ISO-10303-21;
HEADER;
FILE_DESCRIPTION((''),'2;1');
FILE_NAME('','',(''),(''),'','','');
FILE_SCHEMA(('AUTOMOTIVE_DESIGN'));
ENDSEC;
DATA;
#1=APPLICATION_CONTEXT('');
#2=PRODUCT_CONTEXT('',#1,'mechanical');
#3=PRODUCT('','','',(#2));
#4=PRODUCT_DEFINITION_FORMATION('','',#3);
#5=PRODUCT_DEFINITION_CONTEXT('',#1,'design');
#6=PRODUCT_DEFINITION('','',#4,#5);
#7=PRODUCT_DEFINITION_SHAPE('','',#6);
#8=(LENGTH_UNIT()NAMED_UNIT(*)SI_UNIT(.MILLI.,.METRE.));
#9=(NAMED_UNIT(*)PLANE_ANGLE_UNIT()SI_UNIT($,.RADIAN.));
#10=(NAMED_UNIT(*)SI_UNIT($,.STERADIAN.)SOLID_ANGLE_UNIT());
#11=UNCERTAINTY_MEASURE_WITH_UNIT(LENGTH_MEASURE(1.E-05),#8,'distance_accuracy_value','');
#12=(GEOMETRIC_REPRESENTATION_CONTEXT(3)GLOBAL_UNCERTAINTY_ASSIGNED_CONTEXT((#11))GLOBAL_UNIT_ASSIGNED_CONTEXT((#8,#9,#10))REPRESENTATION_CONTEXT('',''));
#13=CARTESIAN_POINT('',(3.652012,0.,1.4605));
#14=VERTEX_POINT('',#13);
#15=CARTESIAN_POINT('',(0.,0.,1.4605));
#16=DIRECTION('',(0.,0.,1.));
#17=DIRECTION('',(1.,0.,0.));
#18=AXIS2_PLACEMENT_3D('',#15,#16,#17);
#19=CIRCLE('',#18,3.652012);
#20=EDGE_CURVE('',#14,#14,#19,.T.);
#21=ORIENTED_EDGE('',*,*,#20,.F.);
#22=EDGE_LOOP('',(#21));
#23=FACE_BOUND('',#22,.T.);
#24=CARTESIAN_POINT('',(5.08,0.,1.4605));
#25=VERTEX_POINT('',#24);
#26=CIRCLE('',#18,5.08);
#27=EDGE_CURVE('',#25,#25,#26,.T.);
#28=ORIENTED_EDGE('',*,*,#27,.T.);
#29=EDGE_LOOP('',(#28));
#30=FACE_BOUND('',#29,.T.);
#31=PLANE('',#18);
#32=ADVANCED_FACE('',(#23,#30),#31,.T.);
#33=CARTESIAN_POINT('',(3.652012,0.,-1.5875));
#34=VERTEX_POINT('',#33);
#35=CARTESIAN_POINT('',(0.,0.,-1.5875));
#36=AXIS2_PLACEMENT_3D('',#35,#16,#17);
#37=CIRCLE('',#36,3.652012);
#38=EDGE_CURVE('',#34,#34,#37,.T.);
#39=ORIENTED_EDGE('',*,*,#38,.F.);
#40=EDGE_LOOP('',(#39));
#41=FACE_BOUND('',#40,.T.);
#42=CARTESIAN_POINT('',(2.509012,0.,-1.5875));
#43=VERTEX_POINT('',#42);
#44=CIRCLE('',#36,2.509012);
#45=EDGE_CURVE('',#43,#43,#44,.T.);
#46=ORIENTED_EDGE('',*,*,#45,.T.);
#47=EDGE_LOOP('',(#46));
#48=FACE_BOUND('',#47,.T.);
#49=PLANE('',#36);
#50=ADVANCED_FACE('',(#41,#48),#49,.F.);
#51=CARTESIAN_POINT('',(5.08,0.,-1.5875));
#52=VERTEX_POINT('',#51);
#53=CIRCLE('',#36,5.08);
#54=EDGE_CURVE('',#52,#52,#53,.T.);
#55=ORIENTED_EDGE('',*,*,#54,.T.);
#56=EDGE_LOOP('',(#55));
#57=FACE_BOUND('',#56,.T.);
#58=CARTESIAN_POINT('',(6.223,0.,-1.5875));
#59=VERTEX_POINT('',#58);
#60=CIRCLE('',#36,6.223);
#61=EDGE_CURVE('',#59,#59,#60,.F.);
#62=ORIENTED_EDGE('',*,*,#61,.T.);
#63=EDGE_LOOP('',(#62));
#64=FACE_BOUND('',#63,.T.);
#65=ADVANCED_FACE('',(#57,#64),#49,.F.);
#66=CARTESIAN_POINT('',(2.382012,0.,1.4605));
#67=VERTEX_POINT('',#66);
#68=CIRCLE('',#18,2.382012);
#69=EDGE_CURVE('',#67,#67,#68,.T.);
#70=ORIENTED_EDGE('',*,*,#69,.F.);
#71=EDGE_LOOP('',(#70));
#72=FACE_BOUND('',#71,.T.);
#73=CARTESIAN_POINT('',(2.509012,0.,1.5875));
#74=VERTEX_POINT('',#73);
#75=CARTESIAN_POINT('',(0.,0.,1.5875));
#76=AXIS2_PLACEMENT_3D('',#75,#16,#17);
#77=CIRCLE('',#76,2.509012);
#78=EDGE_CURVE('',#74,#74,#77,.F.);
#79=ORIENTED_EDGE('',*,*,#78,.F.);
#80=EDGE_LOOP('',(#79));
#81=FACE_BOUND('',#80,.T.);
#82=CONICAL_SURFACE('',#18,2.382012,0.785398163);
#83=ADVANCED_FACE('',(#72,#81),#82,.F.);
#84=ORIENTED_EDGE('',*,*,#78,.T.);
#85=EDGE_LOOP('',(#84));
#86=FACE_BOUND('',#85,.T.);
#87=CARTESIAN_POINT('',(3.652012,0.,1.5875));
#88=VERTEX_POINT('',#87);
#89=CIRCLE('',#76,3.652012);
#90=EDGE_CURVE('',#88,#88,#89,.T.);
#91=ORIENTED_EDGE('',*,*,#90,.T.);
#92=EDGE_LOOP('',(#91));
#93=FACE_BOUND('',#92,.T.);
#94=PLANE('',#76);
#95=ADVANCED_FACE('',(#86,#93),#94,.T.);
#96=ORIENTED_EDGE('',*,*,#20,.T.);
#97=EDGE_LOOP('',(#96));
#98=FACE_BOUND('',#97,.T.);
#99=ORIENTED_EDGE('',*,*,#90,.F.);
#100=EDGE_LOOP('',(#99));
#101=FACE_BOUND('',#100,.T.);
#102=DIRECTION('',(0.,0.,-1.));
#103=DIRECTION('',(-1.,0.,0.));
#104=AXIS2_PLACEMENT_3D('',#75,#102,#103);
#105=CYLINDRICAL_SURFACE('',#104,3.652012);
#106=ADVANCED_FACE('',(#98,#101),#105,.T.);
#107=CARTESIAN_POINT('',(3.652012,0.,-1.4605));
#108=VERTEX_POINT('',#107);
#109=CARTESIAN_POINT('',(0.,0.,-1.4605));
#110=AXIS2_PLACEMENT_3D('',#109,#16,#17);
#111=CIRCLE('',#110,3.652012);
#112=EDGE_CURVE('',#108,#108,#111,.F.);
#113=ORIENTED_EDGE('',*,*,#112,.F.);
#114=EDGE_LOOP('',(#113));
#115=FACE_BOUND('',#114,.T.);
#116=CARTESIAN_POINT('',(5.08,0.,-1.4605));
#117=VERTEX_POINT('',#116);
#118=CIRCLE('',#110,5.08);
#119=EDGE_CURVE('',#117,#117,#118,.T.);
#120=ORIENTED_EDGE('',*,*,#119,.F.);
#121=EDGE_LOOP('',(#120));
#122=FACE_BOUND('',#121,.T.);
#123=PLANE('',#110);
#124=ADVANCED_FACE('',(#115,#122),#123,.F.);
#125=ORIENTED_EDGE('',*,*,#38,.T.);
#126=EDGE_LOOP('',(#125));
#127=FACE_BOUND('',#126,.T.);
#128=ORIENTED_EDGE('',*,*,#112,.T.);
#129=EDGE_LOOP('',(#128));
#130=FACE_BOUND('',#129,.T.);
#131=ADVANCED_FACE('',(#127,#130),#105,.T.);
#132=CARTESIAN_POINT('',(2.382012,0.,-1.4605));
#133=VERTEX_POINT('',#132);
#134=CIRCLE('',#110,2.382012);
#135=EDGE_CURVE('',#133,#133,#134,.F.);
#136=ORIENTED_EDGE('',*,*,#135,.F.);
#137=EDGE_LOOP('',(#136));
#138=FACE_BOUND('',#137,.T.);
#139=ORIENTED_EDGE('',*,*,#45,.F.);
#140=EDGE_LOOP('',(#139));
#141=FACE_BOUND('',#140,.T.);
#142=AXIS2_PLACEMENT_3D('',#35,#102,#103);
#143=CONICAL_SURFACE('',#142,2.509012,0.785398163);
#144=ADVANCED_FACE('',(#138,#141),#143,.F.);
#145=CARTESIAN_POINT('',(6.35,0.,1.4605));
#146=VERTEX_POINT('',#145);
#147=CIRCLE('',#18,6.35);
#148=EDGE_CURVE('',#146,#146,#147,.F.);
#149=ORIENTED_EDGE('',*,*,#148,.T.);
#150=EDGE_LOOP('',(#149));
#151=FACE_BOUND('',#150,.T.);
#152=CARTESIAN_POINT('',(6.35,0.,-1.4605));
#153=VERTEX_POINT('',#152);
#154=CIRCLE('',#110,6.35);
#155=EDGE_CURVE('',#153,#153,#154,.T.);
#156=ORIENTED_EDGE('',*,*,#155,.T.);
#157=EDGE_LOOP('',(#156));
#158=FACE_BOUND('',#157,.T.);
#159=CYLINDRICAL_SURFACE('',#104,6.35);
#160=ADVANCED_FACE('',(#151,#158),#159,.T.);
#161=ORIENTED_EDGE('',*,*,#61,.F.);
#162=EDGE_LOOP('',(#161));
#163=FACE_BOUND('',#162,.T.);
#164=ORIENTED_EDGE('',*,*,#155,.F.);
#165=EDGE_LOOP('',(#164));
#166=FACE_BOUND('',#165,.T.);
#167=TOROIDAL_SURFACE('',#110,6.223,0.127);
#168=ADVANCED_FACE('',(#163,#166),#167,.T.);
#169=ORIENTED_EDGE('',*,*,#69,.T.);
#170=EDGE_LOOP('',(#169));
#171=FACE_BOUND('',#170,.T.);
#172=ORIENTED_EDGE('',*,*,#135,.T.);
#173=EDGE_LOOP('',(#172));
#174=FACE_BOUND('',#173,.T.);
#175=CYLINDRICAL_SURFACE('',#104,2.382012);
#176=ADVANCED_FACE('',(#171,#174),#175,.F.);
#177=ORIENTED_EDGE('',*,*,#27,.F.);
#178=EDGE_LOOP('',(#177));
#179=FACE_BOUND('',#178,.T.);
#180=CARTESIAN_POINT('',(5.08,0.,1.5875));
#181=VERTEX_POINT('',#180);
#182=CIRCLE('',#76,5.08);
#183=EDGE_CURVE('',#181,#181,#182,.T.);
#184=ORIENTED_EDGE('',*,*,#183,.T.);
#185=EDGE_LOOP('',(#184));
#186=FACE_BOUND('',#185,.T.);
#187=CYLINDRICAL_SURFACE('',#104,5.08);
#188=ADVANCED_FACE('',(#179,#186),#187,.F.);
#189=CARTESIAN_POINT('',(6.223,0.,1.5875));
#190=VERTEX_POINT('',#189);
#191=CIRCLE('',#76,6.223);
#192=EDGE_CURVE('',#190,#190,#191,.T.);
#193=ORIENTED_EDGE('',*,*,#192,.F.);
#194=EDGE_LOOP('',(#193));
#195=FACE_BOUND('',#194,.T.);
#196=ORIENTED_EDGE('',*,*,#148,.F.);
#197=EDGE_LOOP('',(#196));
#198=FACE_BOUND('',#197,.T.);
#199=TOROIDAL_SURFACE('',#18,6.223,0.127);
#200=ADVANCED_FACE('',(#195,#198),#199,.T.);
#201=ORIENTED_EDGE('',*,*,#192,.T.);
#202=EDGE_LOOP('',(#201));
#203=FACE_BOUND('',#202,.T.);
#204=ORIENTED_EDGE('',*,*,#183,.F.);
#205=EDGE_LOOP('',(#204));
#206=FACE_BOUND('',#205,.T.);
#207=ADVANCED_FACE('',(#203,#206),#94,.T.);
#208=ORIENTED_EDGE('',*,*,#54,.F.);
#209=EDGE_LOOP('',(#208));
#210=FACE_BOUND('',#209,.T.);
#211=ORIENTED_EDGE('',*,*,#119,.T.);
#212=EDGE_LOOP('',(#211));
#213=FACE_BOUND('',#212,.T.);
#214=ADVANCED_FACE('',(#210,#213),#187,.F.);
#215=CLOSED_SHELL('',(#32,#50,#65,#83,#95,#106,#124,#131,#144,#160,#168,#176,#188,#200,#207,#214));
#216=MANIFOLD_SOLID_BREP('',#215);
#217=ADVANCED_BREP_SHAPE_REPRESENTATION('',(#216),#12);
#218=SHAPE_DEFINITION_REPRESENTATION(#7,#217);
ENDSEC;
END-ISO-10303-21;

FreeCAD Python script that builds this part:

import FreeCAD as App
import Part
import Sketcher
from FreeCAD import Vector
Q = App.Units.Quantity


def edges_at(feature, points):
    """Names of the edges that pass closest to the given points."""
    edges = feature.Shape.Edges
    near = lambda p: min(range(len(edges)), key=lambda i: edges[i].distToShape(Part.Vertex(*p))[0])
    return sorted({f"Edge{near(p) + 1}" for p in points})

doc = App.newDocument("Part")
body = doc.addObject("PartDesign::Body", "Body")

sketch1 = body.newObject("Sketcher::SketchObject", "Sketch")
sketch1.AttachmentSupport = (doc.getObject("XY_Plane"), [""])
sketch1.MapMode = "FlatFace"
sketch1.addGeometry([
    Part.Circle(Vector(0, 0, 0), Vector(0, 0, 1), 6.35),
    Part.Circle(Vector(0, 0, 0), Vector(0, 0, 1), 5.08),
], False)
sketch1.addConstraint([
    Sketcher.Constraint("Coincident", 0, 3, -1, 1),
    Sketcher.Constraint("Coincident", 1, 3, -1, 1),
    Sketcher.Constraint("Diameter", 0, Q("0.5 in")),
    Sketcher.Constraint("Diameter", 1, Q("0.4 in")),
])
pad1 = body.newObject("PartDesign::Pad", "Pad")
pad1.Profile = sketch1
pad1.Length = Q("0.125 in")
pad1.Midplane = True
body2 = doc.addObject("PartDesign::Body", "Body001")

sketch2 = body2.newObject("Sketcher::SketchObject", "Sketch001")
sketch2.AttachmentSupport = (doc.getObject("XY_Plane001"), [""])
sketch2.MapMode = "FlatFace"
sketch2.addGeometry([
    Part.Circle(Vector(0, 0, 0), Vector(0, 0, 1), 3.652012),
    Part.Circle(Vector(0, 0, 0), Vector(0, 0, 1), 2.382012),
], False)
sketch2.addConstraint([
    Sketcher.Constraint("Coincident", 0, 3, -1, 1),
    Sketcher.Constraint("Coincident", 1, 3, -1, 1),
    Sketcher.Constraint("Diameter", 0, 7.304024),
    Sketcher.Constraint("Diameter", 1, 4.764024),
])
pad2 = body2.newObject("PartDesign::Pad", "Pad001")
pad2.Profile = sketch2
pad2.Length = Q("0.125 in")
pad2.Midplane = True
body.AllowCompound = True
doc.recompute()

boolean = body.newObject("PartDesign::Boolean", "Boolean")
boolean.Type = "Fuse"
boolean.addObjects([body2])

sketch3 = body.newObject("Sketcher::SketchObject", "Sketch002")
sketch3.AttachmentSupport = (doc.getObject("XY_Plane"), [""])
sketch3.MapMode = "FlatFace"
sketch3.addGeometry([
    Part.Circle(Vector(0, 0, 0), Vector(0, 0, 1), 5.08),
    Part.Circle(Vector(0, 0, 0), Vector(0, 0, 1), 3.652012),
], False)
sketch3.addConstraint([
    Sketcher.Constraint("Coincident", 0, 3, -1, 1),
    Sketcher.Constraint("Coincident", 1, 3, -1, 1),
    Sketcher.Constraint("Diameter", 0, Q("0.4 in")),
    Sketcher.Constraint("Diameter", 1, 7.304024),
])
pad3 = body.newObject("PartDesign::Pad", "Pad002")
pad3.Profile = sketch3
pad3.Length = Q("0.115 in")
pad3.Midplane = True
doc.recompute()

fillet = body.newObject("PartDesign::Fillet", "Fillet")
fillet.Base = (pad3, edges_at(pad3, [(-6.35, 0, 1.587), (-6.35, 0, -1.587)]))
fillet.Radius = Q("0.005 in")
doc.recompute()

chamfer = body.newObject("PartDesign::Chamfer", "Chamfer")
chamfer.Base = (fillet, edges_at(fillet, [(-2.382, 0, 1.587), (-2.382, 0, -1.587)]))
chamfer.Size = Q("0.005 in")

doc.recompute()
